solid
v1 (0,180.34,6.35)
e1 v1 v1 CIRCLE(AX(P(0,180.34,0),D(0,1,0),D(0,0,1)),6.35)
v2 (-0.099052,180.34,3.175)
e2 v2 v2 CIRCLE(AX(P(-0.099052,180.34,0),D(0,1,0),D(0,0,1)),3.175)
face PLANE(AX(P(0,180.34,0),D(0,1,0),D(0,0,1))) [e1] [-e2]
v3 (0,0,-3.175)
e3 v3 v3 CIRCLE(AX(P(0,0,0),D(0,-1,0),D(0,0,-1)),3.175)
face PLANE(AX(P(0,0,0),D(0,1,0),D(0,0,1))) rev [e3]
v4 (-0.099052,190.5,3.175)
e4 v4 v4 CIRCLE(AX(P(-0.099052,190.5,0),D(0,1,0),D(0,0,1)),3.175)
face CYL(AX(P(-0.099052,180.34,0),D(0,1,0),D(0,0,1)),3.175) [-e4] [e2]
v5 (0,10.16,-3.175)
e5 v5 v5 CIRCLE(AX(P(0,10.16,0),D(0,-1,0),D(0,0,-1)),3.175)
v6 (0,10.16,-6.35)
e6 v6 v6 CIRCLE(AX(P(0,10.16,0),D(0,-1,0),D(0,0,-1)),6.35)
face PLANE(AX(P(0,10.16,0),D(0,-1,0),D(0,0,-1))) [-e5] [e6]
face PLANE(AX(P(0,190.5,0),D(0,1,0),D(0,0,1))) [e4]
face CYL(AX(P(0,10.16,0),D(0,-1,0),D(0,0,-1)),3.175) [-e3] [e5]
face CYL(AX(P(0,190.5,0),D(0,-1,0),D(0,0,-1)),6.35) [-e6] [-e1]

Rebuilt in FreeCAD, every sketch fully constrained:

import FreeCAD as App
import Part
import Sketcher
Q = App.Units.Quantity

doc = App.newDocument("Part")
params = doc.addObject("Spreadsheet::Sheet", "Params")
for row, (alias, value) in enumerate([
    ("sketch1_diameter", "0.5 in"),
    ("pad1_length", "7.5 in"),
    ("sketch2_diameter", "0.5 in"),
    ("sketch2_diameter2", "0.25 in"),
    ("pocket1_length", "0.4 in"),
    ("sketch3_diameter", "0.5 in"),
    ("sketch3_diameter2", "0.25 in"),
    ("pocket2_length", "0.4 in"),
], start=1):
    params.set(f"A{row}", alias)
    params.set(f"B{row}", "=" + value)
    params.setAlias(f"B{row}", alias)

body = doc.addObject("PartDesign::Body", "Body")

sketch1 = body.newObject("Sketcher::SketchObject", "Sketch")
sketch1.AttachmentSupport = (doc.getObject("XZ_Plane"), [""])
sketch1.MapMode = "FlatFace"
sketch1.addGeometry(Part.Circle(App.Vector(0, 0, 0), App.Vector(0, 0, 1), 6.35), False)
sketch1.addConstraint([
    Sketcher.Constraint("Coincident", 0, 3, -1, 1),
    Sketcher.Constraint("Diameter", 0, Q("0.5 in")),
])
sketch1.setExpression("Constraints[1]", "Params.sketch1_diameter")
pad1 = body.newObject("PartDesign::Pad", "Pad")
pad1.Profile = sketch1
pad1.setExpression("Length", "Params.pad1_length")
pad1.Reversed = True

sketch2 = body.newObject("Sketcher::SketchObject", "Sketch001")
sketch2.AttachmentSupport = (doc.getObject("XZ_Plane"), [""])
sketch2.MapMode = "FlatFace"
sketch2.AttachmentOffset = App.Placement(App.Vector(0, 0, -7.1 * 25.4), App.Rotation())
sketch2.addGeometry([
    Part.Circle(App.Vector(0, 0, 0), App.Vector(0, 0, 1), 6.35),
    Part.Circle(App.Vector(-0.099052, 0, 0), App.Vector(0, 0, 1), 3.175),
], False)
sketch2.addConstraint([
    Sketcher.Constraint("Coincident", 0, 3, -1, 1),
    Sketcher.Constraint("PointOnObject", 1, 3, -1),
    Sketcher.Constraint("Diameter", 0, Q("0.5 in")),
    Sketcher.Constraint("Diameter", 1, Q("0.25 in")),
    Sketcher.Constraint("DistanceX", 1, 3, -1, 1, Q("0.099052 mm")),
])
sketch2.setExpression("Constraints[2]", "Params.sketch2_diameter")
sketch2.setExpression("Constraints[3]", "Params.sketch2_diameter2")
pocket1 = body.newObject("PartDesign::Pocket", "Pocket")
pocket1.Profile = sketch2
pocket1.setExpression("Length", "Params.pocket1_length")

sketch3 = body.newObject("Sketcher::SketchObject", "Sketch002")
sketch3.AttachmentSupport = (doc.getObject("XZ_Plane"), [""])
sketch3.MapMode = "FlatFace"
sketch3.addGeometry([
    Part.Circle(App.Vector(0, 0, 0), App.Vector(0, 0, 1), 6.35),
    Part.Circle(App.Vector(0, 0, 0), App.Vector(0, 0, 1), 3.175),
], False)
sketch3.addConstraint([
    Sketcher.Constraint("Coincident", 0, 3, -1, 1),
    Sketcher.Constraint("Coincident", 1, 3, -1, 1),
    Sketcher.Constraint("Diameter", 0, Q("0.5 in")),
    Sketcher.Constraint("Diameter", 1, Q("0.25 in")),
])
sketch3.setExpression("Constraints[2]", "Params.sketch3_diameter")
sketch3.setExpression("Constraints[3]", "Params.sketch3_diameter2")
pocket2 = body.newObject("PartDesign::Pocket", "Pocket001")
pocket2.Profile = sketch3
pocket2.setExpression("Length", "Params.pocket2_length")

doc.recompute()
